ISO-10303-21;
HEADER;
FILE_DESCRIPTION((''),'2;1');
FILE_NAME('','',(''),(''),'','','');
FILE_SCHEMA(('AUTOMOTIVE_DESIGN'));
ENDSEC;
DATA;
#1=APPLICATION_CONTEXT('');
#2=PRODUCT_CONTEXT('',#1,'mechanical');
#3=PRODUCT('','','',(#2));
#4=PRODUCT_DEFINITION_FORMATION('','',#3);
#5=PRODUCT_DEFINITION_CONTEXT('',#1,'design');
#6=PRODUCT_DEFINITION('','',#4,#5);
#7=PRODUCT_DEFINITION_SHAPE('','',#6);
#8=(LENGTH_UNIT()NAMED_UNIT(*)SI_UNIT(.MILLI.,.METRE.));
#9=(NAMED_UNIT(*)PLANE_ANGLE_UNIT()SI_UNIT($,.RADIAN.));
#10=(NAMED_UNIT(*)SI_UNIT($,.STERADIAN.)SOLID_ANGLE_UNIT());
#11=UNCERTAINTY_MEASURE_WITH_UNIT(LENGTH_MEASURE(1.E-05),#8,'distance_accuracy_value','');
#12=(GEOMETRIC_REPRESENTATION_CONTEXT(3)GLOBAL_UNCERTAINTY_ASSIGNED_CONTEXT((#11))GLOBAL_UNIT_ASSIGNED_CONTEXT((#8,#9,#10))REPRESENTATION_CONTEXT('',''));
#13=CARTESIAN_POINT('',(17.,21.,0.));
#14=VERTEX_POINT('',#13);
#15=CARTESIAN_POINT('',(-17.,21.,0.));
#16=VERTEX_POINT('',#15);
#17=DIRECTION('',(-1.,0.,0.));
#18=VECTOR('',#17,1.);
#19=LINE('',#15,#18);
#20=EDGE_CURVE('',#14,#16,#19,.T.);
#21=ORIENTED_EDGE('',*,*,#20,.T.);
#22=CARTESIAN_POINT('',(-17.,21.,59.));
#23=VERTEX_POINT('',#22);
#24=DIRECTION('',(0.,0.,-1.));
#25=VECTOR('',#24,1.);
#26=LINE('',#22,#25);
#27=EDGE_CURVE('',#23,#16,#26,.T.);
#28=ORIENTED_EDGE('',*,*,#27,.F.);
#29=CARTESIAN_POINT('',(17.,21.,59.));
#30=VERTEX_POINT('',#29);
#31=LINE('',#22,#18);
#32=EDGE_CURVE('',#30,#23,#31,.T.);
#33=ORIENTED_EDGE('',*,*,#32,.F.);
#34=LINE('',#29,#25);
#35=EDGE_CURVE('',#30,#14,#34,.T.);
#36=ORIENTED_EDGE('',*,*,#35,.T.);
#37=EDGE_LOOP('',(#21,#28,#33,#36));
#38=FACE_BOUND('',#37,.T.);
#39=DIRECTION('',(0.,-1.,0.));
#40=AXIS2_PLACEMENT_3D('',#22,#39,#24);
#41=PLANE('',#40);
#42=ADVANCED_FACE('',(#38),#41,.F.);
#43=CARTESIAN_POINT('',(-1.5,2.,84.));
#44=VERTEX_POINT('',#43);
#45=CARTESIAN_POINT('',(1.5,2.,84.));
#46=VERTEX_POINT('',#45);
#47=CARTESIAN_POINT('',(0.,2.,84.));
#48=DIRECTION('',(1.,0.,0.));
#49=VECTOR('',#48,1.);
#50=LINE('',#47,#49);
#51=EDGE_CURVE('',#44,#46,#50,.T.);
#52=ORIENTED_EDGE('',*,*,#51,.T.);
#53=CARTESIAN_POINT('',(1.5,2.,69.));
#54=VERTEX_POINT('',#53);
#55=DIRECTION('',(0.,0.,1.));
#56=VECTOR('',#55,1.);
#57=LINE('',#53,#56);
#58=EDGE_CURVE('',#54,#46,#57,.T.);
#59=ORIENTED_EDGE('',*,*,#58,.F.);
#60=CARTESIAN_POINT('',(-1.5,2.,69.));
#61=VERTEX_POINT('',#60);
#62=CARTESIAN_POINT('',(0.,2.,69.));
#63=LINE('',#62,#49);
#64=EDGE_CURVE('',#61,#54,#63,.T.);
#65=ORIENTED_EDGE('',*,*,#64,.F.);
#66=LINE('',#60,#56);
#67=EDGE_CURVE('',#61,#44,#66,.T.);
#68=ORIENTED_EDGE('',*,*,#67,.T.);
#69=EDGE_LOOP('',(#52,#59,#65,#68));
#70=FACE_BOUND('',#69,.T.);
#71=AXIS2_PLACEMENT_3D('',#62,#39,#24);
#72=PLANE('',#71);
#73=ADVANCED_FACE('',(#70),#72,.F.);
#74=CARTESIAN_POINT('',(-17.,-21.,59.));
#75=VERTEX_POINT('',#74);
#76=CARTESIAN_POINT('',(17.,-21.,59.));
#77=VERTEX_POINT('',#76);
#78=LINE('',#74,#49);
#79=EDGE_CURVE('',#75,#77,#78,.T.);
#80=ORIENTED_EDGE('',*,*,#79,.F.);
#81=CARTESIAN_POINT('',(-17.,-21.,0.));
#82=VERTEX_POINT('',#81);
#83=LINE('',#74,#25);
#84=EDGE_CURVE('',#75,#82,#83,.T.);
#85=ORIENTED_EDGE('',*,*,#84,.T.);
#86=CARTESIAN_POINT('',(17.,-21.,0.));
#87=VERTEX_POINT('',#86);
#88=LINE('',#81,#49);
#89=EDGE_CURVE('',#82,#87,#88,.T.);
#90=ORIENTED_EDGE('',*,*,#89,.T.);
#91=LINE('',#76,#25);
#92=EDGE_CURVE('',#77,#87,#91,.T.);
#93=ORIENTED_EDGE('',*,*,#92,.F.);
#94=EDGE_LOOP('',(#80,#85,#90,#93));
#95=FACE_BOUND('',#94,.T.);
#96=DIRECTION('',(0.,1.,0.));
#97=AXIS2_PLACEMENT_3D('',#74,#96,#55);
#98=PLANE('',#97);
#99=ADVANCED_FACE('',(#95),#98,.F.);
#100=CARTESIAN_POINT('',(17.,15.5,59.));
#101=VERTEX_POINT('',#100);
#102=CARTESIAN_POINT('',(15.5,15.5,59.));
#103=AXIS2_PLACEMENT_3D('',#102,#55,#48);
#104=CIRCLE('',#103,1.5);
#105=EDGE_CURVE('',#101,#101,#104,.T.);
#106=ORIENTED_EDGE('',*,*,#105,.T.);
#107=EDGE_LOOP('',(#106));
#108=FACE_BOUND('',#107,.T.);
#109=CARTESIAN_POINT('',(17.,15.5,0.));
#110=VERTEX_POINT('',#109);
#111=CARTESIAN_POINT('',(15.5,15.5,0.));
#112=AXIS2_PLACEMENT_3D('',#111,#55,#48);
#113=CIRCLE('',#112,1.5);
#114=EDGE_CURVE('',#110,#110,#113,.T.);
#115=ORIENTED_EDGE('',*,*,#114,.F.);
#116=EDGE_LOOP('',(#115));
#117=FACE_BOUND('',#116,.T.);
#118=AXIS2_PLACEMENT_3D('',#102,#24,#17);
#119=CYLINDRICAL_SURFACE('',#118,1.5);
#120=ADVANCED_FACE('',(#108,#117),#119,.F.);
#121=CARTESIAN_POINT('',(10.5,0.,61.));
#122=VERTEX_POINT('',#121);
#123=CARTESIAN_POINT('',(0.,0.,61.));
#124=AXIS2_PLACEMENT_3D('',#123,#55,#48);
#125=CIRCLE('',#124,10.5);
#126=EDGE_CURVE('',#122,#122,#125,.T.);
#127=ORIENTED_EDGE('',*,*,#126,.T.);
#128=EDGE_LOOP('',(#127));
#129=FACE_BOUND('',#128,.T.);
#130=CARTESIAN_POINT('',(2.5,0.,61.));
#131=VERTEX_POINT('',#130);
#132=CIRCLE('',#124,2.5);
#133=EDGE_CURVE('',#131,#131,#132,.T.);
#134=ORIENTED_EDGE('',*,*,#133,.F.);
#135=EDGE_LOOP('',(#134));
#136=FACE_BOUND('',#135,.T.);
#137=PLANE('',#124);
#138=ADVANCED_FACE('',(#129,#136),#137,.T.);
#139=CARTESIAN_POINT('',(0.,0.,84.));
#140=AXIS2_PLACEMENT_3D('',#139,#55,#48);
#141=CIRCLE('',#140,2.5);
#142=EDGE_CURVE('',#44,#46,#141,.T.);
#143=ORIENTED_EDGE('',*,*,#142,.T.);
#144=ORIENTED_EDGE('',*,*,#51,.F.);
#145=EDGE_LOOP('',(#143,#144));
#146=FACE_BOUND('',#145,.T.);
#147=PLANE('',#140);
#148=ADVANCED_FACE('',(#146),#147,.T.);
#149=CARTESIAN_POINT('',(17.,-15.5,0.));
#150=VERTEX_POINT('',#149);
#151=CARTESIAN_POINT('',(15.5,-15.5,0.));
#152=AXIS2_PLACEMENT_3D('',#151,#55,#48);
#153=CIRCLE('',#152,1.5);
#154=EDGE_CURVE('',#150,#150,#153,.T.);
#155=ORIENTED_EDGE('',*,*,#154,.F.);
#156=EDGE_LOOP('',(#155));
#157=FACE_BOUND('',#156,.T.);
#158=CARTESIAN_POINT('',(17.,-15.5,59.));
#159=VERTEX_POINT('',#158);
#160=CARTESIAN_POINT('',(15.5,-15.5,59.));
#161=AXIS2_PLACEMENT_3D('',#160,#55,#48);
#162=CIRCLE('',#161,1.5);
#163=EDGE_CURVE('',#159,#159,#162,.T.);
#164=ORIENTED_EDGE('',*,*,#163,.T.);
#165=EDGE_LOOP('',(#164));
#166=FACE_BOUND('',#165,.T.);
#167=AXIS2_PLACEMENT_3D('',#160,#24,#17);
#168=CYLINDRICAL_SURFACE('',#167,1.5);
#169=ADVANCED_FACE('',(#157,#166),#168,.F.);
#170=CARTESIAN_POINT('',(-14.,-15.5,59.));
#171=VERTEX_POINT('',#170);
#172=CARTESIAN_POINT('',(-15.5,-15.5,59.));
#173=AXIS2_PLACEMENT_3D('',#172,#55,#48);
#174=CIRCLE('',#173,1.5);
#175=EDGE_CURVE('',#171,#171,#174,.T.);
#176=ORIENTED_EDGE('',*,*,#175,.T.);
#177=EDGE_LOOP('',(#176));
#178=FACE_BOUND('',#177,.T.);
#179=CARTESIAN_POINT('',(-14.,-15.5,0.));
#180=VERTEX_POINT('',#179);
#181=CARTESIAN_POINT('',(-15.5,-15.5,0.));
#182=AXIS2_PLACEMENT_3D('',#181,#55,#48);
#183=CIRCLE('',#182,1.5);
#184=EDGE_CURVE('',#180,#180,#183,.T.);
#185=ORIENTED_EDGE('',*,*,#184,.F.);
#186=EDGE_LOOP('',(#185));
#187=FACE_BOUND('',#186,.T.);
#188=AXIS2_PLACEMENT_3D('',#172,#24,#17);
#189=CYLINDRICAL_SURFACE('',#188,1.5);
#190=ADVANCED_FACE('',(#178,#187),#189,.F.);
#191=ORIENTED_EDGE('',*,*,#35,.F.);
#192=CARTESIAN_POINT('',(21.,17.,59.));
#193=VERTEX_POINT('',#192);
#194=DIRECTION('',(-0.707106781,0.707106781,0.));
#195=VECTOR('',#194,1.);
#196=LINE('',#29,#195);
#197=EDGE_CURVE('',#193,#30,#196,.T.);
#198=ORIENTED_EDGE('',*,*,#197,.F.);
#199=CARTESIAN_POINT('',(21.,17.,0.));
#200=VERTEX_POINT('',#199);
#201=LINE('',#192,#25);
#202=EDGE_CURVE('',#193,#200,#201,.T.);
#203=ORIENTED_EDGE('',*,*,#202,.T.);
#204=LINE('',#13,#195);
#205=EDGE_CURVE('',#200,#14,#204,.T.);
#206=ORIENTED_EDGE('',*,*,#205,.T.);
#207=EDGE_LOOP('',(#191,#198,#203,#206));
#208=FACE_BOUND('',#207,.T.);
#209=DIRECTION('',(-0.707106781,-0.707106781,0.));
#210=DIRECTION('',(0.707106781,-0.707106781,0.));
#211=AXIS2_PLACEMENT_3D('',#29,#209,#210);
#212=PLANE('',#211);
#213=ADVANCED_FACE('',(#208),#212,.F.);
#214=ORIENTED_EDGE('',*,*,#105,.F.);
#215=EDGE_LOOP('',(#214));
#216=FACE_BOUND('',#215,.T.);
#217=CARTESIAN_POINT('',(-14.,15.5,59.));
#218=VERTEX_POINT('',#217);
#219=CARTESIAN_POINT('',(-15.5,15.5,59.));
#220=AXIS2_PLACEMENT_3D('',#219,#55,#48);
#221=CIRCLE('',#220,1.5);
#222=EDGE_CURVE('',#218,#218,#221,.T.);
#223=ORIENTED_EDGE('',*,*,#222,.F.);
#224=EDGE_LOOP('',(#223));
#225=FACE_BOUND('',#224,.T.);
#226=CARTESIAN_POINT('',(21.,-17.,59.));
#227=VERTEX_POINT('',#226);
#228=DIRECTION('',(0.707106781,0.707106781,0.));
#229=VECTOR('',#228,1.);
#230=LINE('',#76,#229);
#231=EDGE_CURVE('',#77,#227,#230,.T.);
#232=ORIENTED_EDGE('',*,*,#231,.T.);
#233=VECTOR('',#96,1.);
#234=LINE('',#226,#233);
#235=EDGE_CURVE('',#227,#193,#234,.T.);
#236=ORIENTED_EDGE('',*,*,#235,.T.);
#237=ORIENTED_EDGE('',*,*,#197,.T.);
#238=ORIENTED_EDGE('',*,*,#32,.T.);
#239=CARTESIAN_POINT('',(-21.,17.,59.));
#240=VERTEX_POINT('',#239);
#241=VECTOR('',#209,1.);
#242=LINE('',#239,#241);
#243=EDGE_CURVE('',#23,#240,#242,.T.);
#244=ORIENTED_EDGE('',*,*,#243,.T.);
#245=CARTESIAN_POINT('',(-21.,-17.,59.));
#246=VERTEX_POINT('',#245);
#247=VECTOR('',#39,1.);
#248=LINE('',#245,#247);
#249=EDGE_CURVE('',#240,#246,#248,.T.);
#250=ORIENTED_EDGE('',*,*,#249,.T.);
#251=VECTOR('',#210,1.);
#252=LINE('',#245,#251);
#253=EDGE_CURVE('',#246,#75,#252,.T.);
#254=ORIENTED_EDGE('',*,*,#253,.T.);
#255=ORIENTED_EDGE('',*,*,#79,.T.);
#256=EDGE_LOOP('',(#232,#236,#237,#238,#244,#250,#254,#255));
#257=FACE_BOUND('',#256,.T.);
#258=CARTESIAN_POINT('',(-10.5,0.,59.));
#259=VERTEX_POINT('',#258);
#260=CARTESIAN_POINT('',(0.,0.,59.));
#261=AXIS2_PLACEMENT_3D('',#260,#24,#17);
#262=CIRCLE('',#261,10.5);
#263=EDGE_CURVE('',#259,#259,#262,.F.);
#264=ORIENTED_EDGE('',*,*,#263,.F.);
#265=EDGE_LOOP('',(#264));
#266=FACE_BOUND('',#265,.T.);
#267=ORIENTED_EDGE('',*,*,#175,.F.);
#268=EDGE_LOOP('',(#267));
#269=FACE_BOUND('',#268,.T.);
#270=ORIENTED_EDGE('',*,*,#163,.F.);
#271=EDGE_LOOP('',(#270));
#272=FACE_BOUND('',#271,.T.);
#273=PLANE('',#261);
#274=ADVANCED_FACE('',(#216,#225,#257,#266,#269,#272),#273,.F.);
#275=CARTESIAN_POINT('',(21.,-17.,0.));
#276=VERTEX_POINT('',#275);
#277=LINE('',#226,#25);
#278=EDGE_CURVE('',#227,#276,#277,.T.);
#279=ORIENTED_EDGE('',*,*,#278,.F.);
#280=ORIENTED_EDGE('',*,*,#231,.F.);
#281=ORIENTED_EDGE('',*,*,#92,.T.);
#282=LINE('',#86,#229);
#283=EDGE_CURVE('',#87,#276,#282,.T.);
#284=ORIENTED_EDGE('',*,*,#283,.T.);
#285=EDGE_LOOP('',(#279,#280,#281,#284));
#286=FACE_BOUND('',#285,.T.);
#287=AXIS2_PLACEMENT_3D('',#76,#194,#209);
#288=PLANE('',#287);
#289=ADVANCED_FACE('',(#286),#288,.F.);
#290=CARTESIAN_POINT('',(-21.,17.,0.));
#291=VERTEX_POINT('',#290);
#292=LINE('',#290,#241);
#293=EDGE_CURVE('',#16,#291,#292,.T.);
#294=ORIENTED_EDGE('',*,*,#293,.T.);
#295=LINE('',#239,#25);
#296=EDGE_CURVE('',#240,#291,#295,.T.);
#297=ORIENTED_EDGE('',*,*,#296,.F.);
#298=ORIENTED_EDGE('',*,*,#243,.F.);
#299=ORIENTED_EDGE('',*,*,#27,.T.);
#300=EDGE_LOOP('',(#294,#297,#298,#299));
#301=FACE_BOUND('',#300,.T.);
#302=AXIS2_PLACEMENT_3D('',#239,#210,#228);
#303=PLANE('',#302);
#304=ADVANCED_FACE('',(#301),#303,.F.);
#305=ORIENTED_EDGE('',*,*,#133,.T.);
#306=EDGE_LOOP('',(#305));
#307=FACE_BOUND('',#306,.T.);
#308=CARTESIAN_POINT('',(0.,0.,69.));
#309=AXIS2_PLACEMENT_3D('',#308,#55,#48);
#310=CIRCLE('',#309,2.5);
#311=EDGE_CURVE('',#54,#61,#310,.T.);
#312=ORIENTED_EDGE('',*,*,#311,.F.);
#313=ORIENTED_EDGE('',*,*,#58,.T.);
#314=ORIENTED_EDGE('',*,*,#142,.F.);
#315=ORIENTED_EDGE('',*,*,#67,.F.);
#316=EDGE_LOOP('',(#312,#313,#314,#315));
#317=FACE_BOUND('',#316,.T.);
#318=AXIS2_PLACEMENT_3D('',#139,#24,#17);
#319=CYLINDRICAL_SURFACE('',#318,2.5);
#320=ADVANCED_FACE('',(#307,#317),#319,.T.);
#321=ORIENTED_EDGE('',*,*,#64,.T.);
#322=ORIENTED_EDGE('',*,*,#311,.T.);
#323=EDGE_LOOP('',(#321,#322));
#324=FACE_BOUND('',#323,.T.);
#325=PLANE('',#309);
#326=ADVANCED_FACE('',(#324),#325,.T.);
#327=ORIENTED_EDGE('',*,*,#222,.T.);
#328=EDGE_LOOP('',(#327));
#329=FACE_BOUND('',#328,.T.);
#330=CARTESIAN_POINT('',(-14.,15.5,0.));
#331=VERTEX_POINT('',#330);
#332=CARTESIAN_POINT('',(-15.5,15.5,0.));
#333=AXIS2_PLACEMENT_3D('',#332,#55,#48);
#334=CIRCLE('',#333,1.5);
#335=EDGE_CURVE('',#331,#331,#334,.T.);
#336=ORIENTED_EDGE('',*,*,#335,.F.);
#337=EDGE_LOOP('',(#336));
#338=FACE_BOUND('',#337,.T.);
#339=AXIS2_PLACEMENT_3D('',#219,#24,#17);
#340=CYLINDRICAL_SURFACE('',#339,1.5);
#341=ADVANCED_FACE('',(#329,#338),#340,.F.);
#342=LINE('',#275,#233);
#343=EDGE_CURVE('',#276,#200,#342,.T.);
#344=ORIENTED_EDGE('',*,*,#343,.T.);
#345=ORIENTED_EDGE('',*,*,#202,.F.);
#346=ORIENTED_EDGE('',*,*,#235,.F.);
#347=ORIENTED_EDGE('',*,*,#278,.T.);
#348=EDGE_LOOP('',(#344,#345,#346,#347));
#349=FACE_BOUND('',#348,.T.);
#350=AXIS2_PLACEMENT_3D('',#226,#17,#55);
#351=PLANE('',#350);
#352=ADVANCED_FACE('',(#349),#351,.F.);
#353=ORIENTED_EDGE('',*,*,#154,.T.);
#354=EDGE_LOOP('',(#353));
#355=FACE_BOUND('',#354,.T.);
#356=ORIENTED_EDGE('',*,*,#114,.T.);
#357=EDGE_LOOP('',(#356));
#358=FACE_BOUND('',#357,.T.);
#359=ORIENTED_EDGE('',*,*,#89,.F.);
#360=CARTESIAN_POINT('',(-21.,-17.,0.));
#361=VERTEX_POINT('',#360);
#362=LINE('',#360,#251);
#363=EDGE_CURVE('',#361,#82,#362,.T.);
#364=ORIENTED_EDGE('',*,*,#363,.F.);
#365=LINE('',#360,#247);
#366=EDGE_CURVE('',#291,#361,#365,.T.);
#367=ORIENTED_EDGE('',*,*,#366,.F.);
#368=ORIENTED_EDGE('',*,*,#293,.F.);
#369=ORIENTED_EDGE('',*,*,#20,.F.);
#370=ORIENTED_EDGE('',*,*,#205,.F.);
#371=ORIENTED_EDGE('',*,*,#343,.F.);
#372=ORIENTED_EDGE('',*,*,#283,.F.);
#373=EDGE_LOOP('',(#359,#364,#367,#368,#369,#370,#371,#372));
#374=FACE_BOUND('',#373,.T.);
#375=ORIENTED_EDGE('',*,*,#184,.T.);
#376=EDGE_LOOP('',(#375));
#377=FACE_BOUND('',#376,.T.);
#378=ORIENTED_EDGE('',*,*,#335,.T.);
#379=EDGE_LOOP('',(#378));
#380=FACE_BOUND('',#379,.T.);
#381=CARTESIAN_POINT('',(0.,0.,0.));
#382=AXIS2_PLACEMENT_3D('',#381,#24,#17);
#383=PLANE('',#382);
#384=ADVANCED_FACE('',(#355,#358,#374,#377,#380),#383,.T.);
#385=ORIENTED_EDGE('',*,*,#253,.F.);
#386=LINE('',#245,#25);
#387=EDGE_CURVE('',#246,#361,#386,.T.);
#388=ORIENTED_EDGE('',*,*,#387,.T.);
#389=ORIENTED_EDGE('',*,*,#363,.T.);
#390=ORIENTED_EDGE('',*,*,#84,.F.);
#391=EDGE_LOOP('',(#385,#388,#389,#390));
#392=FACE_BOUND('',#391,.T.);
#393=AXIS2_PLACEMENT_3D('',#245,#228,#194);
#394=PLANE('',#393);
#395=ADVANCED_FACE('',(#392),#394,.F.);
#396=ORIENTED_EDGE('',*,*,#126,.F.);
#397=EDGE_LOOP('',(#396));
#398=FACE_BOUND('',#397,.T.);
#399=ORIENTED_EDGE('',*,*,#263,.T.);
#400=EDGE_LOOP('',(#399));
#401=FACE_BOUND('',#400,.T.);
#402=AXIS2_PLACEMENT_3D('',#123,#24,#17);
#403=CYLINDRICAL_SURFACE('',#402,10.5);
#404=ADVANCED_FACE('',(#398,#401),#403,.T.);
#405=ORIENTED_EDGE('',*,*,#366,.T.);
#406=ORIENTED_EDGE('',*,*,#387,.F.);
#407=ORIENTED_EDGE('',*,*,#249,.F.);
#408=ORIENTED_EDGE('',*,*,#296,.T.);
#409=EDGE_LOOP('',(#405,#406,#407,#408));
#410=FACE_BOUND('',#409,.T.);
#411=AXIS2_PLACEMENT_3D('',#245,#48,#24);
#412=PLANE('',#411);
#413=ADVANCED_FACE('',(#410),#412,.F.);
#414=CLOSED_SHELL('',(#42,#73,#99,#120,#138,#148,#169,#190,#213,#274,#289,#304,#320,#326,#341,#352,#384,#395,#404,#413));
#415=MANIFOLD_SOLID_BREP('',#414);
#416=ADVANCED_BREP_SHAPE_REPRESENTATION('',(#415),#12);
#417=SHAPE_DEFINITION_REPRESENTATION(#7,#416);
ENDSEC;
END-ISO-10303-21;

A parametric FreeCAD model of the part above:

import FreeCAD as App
import Part
import Sketcher
Q = App.Units.Quantity


def add_polygon(sketch, points):
    """Adds a closed chain of lines whose ends are joined by coincident constraints."""
    first, n = sketch.GeometryCount, len(points)
    for a, b in zip(points, points[1:] + points[:1]):
        sketch.addGeometry(Part.LineSegment(App.Vector(*a, 0), App.Vector(*b, 0)), False)
    for i in range(n):
        sketch.addConstraint(Sketcher.Constraint("Coincident", first + i, 2, first + (i + 1) % n, 1))

doc = App.newDocument("Part")
params = doc.addObject("Spreadsheet::Sheet", "Params")
for row, (alias, value) in enumerate([
    ("sketch1_diameter", "3 mm"),
    ("sketch1_width", "34 mm"),
    ("pad1_length", "59 mm"),
    ("sketch2_diameter", "21 mm"),
    ("pad2_length", "2 mm"),
    ("sketch3_diameter", "5 mm"),
    ("pad3_length", "23 mm"),
    ("pocket1_length", "15 mm"),
], start=1):
    params.set(f"A{row}", alias)
    params.set(f"B{row}", "=" + value)
    params.setAlias(f"B{row}", alias)

body = doc.addObject("PartDesign::Body", "Body")

sketch1 = body.newObject("Sketcher::SketchObject", "Sketch")
sketch1.AttachmentSupport = (doc.getObject("XY_Plane"), [""])
sketch1.MapMode = "FlatFace"
add_polygon(sketch1, [(-17, -21), (17, -21), (21, -17), (21, 17), (17, 21), (-17, 21), (-21, 17), (-21, -17)])
sketch1.addGeometry(Part.Circle(App.Vector(-15.5, -15.5, 0), App.Vector(0, 0, 1), 1.5), False)
sketch1.addGeometry(Part.Circle(App.Vector(15.5, -15.5, 0), App.Vector(0, 0, 1), 1.5), False)
sketch1.addGeometry(Part.Circle(App.Vector(-15.5, 15.5, 0), App.Vector(0, 0, 1), 1.5), False)
sketch1.addGeometry(Part.Circle(App.Vector(15.5, 15.5, 0), App.Vector(0, 0, 1), 1.5), False)
sketch1.addConstraint(Sketcher.Constraint("Horizontal", 0))
sketch1.addConstraint(Sketcher.Constraint("Vertical", 2))
sketch1.addConstraint(Sketcher.Constraint("Horizontal", 4))
sketch1.addConstraint(Sketcher.Constraint("Vertical", 6))
sketch1.addConstraint(Sketcher.Constraint("Equal", 8, 9))
sketch1.addConstraint(Sketcher.Constraint("Equal", 9, 10))
sketch1.addConstraint(Sketcher.Constraint("Equal", 10, 11))
sketch1.addConstraint(Sketcher.Constraint("Symmetric", 9, 3, 10, 3, -1, 1))
sketch1.addConstraint(Sketcher.Constraint("Symmetric", 8, 3, 11, 3, -1, 1))
sketch1.addConstraint(Sketcher.Constraint("Symmetric", 0, 2, 4, 2, -1, 1))
sketch1.addConstraint(Sketcher.Constraint("Symmetric", 1, 2, 5, 2, -1, 1))
sketch1.addConstraint(Sketcher.Constraint("Symmetric", 8, 3, 9, 3, -2))
sketch1.addConstraint(Sketcher.Constraint("Perpendicular", 1, 3))
sketch1.addConstraint(Sketcher.Constraint("Perpendicular", 5, 7))
sketch1.addConstraint(Sketcher.Constraint("Horizontal", 2, 2, 5, 2))
sketch1.addConstraint(Sketcher.Constraint("Horizontal", 1, 2, 6, 2))
sketch1.addConstraint(Sketcher.Constraint("Vertical", 0, 2, 3, 2))
sketch1.addConstraint(Sketcher.Constraint("Equal", 4, 2))
sketch1.addConstraint(Sketcher.Constraint("Diameter", 8, Q("3 mm")))
sketch1.addConstraint(Sketcher.Constraint("DistanceX", 0, 1, 0, 2, Q("34 mm")))
sketch1.addConstraint(Sketcher.Constraint("DistanceY", 0, 2, -1, 1, Q("21 mm")))
sketch1.addConstraint(Sketcher.Constraint("DistanceX", 8, 3, 9, 3, Q("31 mm")))
sketch1.addConstraint(Sketcher.Constraint("DistanceY", 8, 3, 10, 3, Q("31 mm")))
sketch1.setExpression("Constraints[26]", "Params.sketch1_diameter")
sketch1.setExpression("Constraints[27]", "Params.sketch1_width")
pad1 = body.newObject("PartDesign::Pad", "Pad")
pad1.Profile = sketch1
pad1.setExpression("Length", "Params.pad1_length")

sketch2 = body.newObject("Sketcher::SketchObject", "Sketch001")
sketch2.AttachmentSupport = (doc.getObject("XY_Plane"), [""])
sketch2.MapMode = "FlatFace"
sketch2.AttachmentOffset = App.Placement(App.Vector(0, 0, 59), App.Rotation())
sketch2.addGeometry(Part.Circle(App.Vector(0, 0, 0), App.Vector(0, 0, 1), 10), False)
sketch2.addConstraint(Sketcher.Constraint("Coincident", 0, 3, -1, 1))
sketch2.addConstraint(Sketcher.Constraint("Diameter", 0, Q("21 mm")))
sketch2.setExpression("Constraints[1]", "Params.sketch2_diameter")
pad2 = body.newObject("PartDesign::Pad", "Pad001")
pad2.Profile = sketch2
pad2.setExpression("Length", "Params.pad2_length")

sketch3 = body.newObject("Sketcher::SketchObject", "Sketch002")
sketch3.AttachmentSupport = (doc.getObject("XY_Plane"), [""])
sketch3.MapMode = "FlatFace"
sketch3.AttachmentOffset = App.Placement(App.Vector(0, 0, 61), App.Rotation())
sketch3.addGeometry(Part.Circle(App.Vector(0, 0, 0), App.Vector(0, 0, 1), 2.5), False)
sketch3.addConstraint(Sketcher.Constraint("Coincident", 0, 3, -1, 1))
sketch3.addConstraint(Sketcher.Constraint("Diameter", 0, Q("5 mm")))
sketch3.setExpression("Constraints[1]", "Params.sketch3_diameter")
pad3 = body.newObject("PartDesign::Pad", "Pad002")
pad3.Profile = sketch3
pad3.setExpression("Length", "Params.pad3_length")

sketch4 = body.newObject("Sketcher::SketchObject", "Sketch003")
sketch4.AttachmentSupport = (doc.getObject("XY_Plane"), [""])
sketch4.MapMode = "FlatFace"
sketch4.AttachmentOffset = App.Placement(App.Vector(0, 0, 84), App.Rotation())
add_polygon(sketch4, [(-76, 2), (76, 2), (76, 151), (-76, 151)])
sketch4.addConstraint(Sketcher.Constraint("Horizontal", 0))
sketch4.addConstraint(Sketcher.Constraint("Vertical", 1))
sketch4.addConstraint(Sketcher.Constraint("Horizontal", 2))
sketch4.addConstraint(Sketcher.Constraint("Vertical", 3))
sketch4.addConstraint(Sketcher.Constraint("DistanceY", -1, 1, 0, 2, Q("2 mm")))
sketch4.addConstraint(Sketcher.Constraint("DistanceX", 0, 1, 0, 2, Q("151.701204 mm")))
sketch4.addConstraint(Sketcher.Constraint("DistanceY", 1, 1, 1, 2, Q("148.701204 mm")))
sketch4.addConstraint(Sketcher.Constraint("DistanceX", -1, 1, 0, 2, Q("75.850602 mm")))
pocket1 = body.newObject("PartDesign::Pocket", "Pocket")
pocket1.Profile = sketch4
pocket1.setExpression("Length", "Params.pocket1_length")

doc.recompute()
